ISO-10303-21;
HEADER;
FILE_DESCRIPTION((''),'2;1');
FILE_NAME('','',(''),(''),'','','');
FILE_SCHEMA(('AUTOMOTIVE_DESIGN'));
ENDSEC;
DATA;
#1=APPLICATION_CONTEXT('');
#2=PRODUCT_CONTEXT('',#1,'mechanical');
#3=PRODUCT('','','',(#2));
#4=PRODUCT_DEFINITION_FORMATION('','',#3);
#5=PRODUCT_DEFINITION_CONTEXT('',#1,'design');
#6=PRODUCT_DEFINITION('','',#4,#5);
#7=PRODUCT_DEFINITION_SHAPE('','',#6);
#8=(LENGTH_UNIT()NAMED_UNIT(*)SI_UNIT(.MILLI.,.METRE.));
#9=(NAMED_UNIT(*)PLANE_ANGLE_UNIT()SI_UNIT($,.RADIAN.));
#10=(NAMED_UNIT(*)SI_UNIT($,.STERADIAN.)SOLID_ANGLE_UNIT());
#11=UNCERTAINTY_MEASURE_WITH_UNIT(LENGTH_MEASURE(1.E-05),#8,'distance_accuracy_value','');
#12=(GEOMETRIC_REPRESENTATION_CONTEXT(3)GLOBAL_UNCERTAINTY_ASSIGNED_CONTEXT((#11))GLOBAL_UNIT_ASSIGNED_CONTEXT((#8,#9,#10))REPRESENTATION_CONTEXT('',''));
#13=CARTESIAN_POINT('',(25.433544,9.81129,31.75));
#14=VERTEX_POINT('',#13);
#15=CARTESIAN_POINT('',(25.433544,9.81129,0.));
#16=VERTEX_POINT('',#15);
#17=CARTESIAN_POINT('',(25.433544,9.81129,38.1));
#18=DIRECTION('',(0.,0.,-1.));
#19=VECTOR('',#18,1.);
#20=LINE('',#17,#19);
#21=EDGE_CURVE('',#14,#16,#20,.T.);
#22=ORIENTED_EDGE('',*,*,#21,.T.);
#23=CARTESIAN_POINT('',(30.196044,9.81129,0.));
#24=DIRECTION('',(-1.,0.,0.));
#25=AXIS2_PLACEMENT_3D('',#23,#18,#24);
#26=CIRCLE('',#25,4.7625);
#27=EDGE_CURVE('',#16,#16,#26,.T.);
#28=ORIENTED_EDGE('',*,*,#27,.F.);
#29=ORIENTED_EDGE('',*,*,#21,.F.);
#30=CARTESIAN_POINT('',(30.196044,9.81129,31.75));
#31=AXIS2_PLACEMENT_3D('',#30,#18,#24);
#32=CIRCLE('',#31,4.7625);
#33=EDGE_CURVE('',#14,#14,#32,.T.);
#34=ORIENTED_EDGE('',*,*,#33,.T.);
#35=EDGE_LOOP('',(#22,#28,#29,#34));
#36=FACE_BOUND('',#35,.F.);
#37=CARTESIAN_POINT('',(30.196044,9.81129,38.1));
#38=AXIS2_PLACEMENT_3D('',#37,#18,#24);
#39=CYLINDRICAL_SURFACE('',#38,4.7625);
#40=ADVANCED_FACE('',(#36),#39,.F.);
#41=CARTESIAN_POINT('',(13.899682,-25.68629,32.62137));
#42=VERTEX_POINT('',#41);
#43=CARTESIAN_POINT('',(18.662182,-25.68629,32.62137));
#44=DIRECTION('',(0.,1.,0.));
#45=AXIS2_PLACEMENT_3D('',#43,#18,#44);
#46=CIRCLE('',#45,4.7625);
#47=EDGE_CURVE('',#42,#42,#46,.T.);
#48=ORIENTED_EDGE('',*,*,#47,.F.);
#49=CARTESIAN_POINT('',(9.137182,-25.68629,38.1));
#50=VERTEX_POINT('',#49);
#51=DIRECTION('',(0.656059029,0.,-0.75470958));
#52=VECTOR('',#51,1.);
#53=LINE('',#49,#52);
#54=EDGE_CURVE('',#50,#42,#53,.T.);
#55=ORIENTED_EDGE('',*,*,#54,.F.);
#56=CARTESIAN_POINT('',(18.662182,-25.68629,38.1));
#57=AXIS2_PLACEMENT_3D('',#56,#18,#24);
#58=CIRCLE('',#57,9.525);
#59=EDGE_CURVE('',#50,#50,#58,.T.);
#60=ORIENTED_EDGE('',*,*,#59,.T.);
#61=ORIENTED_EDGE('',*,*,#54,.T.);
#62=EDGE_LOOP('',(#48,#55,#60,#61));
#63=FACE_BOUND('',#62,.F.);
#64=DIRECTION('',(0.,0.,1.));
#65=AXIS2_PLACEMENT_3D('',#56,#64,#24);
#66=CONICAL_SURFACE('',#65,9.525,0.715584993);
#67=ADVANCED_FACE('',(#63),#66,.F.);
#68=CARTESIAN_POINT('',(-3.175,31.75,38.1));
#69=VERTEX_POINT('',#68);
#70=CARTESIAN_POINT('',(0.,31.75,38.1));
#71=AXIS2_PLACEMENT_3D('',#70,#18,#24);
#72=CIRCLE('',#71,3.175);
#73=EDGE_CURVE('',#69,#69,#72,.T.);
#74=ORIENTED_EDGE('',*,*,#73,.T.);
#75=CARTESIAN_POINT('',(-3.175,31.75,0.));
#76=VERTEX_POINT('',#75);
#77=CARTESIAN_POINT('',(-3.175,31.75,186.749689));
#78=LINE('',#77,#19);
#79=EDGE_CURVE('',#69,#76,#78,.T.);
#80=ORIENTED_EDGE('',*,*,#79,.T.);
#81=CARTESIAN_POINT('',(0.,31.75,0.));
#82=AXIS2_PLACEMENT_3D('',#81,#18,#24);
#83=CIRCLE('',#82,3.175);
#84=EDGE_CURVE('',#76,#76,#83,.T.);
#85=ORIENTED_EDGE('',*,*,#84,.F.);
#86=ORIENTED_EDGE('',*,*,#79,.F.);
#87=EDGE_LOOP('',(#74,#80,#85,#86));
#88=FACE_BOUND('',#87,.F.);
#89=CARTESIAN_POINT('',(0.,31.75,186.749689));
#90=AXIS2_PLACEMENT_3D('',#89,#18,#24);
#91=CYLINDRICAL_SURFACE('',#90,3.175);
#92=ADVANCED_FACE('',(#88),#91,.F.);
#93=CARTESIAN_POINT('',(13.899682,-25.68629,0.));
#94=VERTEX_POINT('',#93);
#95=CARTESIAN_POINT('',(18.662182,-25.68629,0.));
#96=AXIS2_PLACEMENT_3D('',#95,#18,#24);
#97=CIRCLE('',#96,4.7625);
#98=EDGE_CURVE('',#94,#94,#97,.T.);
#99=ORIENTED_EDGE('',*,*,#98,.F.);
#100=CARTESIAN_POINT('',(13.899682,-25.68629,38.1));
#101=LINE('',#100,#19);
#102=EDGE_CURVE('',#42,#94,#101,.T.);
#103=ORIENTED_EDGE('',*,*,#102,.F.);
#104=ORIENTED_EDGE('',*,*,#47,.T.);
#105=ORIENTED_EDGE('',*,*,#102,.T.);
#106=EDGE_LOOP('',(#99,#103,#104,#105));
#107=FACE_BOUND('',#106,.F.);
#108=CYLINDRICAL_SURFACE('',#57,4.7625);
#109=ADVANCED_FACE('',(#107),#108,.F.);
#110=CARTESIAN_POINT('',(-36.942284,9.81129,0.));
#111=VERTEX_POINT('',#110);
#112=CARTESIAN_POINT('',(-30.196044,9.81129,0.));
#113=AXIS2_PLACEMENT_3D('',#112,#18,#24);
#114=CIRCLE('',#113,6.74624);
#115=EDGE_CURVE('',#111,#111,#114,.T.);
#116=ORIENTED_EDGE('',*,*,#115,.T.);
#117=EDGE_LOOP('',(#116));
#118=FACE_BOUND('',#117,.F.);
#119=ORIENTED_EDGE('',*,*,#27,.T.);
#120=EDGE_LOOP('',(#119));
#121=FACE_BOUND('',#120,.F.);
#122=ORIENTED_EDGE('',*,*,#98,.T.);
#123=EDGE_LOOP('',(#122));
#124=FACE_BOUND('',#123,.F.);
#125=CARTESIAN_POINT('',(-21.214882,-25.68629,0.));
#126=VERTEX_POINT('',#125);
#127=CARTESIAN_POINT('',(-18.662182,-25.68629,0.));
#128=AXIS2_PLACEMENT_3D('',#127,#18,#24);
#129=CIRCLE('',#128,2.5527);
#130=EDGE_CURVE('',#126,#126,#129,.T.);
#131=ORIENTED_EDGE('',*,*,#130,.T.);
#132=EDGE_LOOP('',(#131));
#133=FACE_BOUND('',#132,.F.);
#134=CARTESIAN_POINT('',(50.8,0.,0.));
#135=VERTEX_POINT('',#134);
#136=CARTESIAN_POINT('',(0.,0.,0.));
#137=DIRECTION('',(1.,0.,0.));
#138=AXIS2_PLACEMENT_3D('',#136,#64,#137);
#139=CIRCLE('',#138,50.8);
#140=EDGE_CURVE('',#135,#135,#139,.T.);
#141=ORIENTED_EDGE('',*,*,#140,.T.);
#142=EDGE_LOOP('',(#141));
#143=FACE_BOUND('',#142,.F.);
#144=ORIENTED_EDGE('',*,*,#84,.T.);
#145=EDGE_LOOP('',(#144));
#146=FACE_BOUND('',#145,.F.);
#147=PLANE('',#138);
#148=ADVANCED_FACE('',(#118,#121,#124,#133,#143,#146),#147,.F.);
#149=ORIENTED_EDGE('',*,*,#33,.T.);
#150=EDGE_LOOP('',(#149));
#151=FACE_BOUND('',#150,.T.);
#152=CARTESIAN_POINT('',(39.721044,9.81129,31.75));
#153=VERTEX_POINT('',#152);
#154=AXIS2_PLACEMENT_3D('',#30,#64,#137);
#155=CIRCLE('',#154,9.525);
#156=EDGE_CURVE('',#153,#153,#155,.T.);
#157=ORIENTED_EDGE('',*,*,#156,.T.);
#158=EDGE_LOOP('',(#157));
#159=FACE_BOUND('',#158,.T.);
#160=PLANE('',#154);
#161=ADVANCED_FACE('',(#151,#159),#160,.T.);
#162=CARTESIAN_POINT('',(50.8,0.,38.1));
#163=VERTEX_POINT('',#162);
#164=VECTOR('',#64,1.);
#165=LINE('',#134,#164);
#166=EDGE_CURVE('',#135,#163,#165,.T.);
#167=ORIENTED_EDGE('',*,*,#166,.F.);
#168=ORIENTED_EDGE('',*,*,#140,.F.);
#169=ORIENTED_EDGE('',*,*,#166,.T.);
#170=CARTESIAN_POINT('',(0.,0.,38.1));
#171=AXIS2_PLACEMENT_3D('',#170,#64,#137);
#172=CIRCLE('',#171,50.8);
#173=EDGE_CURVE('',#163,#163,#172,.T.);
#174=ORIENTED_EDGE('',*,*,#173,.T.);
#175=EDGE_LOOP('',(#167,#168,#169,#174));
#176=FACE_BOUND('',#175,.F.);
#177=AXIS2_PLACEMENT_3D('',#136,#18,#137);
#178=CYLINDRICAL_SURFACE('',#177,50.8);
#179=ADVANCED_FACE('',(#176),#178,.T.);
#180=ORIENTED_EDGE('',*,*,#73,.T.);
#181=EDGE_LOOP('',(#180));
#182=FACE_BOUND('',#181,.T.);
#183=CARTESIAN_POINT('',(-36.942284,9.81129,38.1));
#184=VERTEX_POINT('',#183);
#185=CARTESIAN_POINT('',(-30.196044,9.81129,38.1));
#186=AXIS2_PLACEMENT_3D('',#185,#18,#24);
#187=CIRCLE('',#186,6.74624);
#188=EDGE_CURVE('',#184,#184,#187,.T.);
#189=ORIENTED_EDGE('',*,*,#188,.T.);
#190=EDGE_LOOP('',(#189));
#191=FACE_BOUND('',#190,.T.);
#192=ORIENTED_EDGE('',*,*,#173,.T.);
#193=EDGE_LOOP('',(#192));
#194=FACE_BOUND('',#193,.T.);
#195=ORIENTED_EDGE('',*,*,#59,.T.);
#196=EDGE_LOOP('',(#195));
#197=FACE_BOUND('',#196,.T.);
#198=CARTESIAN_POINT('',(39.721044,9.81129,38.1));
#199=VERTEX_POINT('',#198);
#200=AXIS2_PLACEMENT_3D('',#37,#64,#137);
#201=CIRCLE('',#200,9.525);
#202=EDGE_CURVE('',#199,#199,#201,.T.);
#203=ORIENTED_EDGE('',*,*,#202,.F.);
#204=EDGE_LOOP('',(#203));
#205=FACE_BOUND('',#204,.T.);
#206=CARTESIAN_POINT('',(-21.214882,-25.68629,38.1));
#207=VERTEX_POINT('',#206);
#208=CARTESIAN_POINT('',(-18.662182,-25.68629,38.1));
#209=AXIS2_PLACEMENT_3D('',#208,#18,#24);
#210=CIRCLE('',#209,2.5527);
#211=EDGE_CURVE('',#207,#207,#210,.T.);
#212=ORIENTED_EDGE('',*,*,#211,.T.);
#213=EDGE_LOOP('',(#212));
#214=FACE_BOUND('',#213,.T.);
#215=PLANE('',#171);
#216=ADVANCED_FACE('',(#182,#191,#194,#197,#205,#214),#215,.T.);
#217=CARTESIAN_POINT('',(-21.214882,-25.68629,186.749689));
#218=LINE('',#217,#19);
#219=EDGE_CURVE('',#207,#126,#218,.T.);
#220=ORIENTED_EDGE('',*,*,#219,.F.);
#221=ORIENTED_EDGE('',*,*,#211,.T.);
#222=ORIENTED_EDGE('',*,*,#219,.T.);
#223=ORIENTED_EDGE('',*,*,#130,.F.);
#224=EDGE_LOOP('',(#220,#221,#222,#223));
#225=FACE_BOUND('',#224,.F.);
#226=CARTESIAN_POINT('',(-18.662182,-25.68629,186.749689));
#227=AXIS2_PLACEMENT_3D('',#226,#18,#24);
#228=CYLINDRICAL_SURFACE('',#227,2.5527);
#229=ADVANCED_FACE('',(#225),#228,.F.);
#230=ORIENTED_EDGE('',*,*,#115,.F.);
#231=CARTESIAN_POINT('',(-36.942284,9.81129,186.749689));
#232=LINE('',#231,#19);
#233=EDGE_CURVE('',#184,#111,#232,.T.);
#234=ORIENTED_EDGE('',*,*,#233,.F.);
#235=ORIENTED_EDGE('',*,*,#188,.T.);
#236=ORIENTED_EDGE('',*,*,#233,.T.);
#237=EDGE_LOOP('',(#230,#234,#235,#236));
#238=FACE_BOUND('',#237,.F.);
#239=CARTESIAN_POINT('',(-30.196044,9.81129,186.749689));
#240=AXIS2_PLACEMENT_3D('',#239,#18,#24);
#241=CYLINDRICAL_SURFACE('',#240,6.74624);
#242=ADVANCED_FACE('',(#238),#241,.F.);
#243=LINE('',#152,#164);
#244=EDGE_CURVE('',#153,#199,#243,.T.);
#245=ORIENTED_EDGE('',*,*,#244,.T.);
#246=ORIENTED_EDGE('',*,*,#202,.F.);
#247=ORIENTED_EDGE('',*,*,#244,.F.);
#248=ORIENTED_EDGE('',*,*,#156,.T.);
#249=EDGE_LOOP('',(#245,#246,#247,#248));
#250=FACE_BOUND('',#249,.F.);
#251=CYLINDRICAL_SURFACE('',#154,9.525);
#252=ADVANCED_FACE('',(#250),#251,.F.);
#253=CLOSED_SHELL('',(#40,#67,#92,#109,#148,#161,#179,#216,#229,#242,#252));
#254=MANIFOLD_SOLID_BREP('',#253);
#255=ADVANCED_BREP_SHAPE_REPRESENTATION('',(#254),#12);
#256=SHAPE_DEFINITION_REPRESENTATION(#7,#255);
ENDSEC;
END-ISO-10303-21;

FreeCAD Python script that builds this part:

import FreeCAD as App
import Part
import Sketcher

V = App.Vector
Q = App.Units.Quantity

doc = App.newDocument("Part")
body = doc.addObject("PartDesign::Body", "Body")

# Sketch on XY plane
sketch1 = doc.addObject("Sketcher::SketchObject", "Sketch")
body.addObject(sketch1)
sketch1.AttachmentSupport = (doc.XY_Plane, [""])
sketch1.MapMode = "FlatFace"
sketch1.addGeometry(Part.Circle(V(0, 0, 0), V(0, 0, 1), 51), False)
sketch1.addConstraint([
    Sketcher.Constraint("Coincident", 0, 3, -1, 1),
    Sketcher.Constraint("Diameter", 0, Q("4 in")),
])
pad1 = doc.addObject("PartDesign::Pad", "Pad")
body.addObject(pad1)
pad1.Profile = sketch1
pad1.Length = Q("1.5 in")

# Sketch on XY plane
sketch2 = doc.addObject("Sketcher::SketchObject", "Sketch001")
body.addObject(sketch2)
sketch2.AttachmentSupport = (doc.XY_Plane, [""])
sketch2.MapMode = "FlatFace"
sketch2.AttachmentOffset = App.Placement(V(0, 0, 1.5 * 25.4), App.Rotation())
sketch2.addGeometry(Part.Circle(V(0, 31.8, 0), V(0, 0, 1), 3.2), False)
sketch2.addConstraint([
    Sketcher.Constraint("PointOnObject", 0, 3, -2),
    Sketcher.Constraint("Diameter", 0, Q("0.25 in")),
    Sketcher.Constraint("DistanceY", -1, 1, 0, 3, Q("1.25 in")),
])
doc.recompute()
hole = doc.addObject("PartDesign::Hole", "Hole")
body.addObject(hole)
hole.Profile = sketch2
hole.ThreadType = "None"
hole.Diameter = Q("0.25 in")
hole.DepthType = "ThroughAll"

# Sketch on XY plane
sketch3 = doc.addObject("Sketcher::SketchObject", "Sketch002")
body.addObject(sketch3)
sketch3.AttachmentSupport = (doc.XY_Plane, [""])
sketch3.MapMode = "FlatFace"
sketch3.AttachmentOffset = App.Placement(V(0, 0, 1.5 * 25.4), App.Rotation())
sketch3.addGeometry(Part.Circle(V(30.2, 9.8, 0), V(0, 0, 1), 4.8), False)
sketch3.addConstraint([
    Sketcher.Constraint("Diameter", 0, Q("0.375 in")),
    Sketcher.Constraint("DistanceY", -1, 1, 0, 3, 9.81129),
    Sketcher.Constraint("DistanceX", -1, 1, 0, 3, 30.196044),
])
doc.recompute()
hole2 = doc.addObject("PartDesign::Hole", "Hole001")
body.addObject(hole2)
hole2.Profile = sketch3
hole2.ThreadType = "None"
hole2.Diameter = Q("0.375 in")
hole2.DepthType = "ThroughAll"
hole2.HoleCutType = "Counterbore"
hole2.HoleCutDiameter = Q("0.75 in")
hole2.HoleCutDepth = Q("0.25 in")

# Sketch on XY plane
sketch4 = doc.addObject("Sketcher::SketchObject", "Sketch003")
body.addObject(sketch4)
sketch4.AttachmentSupport = (doc.XY_Plane, [""])
sketch4.MapMode = "FlatFace"
sketch4.AttachmentOffset = App.Placement(V(0, 0, 1.5 * 25.4), App.Rotation())
sketch4.addGeometry(Part.Circle(V(18.7, -25.7, 0), V(0, 0, 1), 4.8), False)
sketch4.addConstraint([
    Sketcher.Constraint("Diameter", 0, Q("0.375 in")),
    Sketcher.Constraint("DistanceX", -1, 1, 0, 3, 18.662182),
    Sketcher.Constraint("DistanceY", 0, 3, -1, 1, 25.68629),
])
doc.recompute()
hole3 = doc.addObject("PartDesign::Hole", "Hole002")
body.addObject(hole3)
hole3.Profile = sketch4
hole3.ThreadType = "None"
hole3.Diameter = Q("0.375 in")
hole3.DepthType = "ThroughAll"
hole3.HoleCutType = "Countersink"
hole3.HoleCutDiameter = Q("0.75 in")
hole3.HoleCutCountersinkAngle = 82

# Sketch on XY plane
sketch5 = doc.addObject("Sketcher::SketchObject", "Sketch004")
body.addObject(sketch5)
sketch5.AttachmentSupport = (doc.XY_Plane, [""])
sketch5.MapMode = "FlatFace"
sketch5.AttachmentOffset = App.Placement(V(0, 0, 1.5 * 25.4), App.Rotation())
sketch5.addGeometry(Part.Circle(V(-18.7, -25.7, 0), V(0, 0, 1), 2.6), False)
sketch5.addConstraint([
    Sketcher.Constraint("Diameter", 0, Q("0.201 in")),
    Sketcher.Constraint("DistanceX", 0, 3, -1, 1, 18.662182),
    Sketcher.Constraint("DistanceY", 0, 3, -1, 1, 25.68629),
])
doc.recompute()
hole4 = doc.addObject("PartDesign::Hole", "Hole003")
body.addObject(hole4)
hole4.Profile = sketch5
hole4.ThreadType = "None"
hole4.Diameter = Q("0.201 in")
hole4.DepthType = "ThroughAll"

# Sketch on XY plane
sketch6 = doc.addObject("Sketcher::SketchObject", "Sketch005")
body.addObject(sketch6)
sketch6.AttachmentSupport = (doc.XY_Plane, [""])
sketch6.MapMode = "FlatFace"
sketch6.AttachmentOffset = App.Placement(V(0, 0, 1.5 * 25.4), App.Rotation())
sketch6.addGeometry(Part.Circle(V(-30, 10, 0), V(0, 0, 1), 7), False)
sketch6.addConstraint([
    Sketcher.Constraint("Diameter", 0, Q("0.5312 in")),
    Sketcher.Constraint("DistanceY", -1, 1, 0, 3, 9.81129),
    Sketcher.Constraint("DistanceX", 0, 3, -1, 1, 30.196044),
])
doc.recompute()
hole5 = doc.addObject("PartDesign::Hole", "Hole004")
body.addObject(hole5)
hole5.Profile = sketch6
hole5.ThreadType = "None"
hole5.Diameter = Q("0.5312 in")
hole5.DepthType = "ThroughAll"

doc.recompute()
